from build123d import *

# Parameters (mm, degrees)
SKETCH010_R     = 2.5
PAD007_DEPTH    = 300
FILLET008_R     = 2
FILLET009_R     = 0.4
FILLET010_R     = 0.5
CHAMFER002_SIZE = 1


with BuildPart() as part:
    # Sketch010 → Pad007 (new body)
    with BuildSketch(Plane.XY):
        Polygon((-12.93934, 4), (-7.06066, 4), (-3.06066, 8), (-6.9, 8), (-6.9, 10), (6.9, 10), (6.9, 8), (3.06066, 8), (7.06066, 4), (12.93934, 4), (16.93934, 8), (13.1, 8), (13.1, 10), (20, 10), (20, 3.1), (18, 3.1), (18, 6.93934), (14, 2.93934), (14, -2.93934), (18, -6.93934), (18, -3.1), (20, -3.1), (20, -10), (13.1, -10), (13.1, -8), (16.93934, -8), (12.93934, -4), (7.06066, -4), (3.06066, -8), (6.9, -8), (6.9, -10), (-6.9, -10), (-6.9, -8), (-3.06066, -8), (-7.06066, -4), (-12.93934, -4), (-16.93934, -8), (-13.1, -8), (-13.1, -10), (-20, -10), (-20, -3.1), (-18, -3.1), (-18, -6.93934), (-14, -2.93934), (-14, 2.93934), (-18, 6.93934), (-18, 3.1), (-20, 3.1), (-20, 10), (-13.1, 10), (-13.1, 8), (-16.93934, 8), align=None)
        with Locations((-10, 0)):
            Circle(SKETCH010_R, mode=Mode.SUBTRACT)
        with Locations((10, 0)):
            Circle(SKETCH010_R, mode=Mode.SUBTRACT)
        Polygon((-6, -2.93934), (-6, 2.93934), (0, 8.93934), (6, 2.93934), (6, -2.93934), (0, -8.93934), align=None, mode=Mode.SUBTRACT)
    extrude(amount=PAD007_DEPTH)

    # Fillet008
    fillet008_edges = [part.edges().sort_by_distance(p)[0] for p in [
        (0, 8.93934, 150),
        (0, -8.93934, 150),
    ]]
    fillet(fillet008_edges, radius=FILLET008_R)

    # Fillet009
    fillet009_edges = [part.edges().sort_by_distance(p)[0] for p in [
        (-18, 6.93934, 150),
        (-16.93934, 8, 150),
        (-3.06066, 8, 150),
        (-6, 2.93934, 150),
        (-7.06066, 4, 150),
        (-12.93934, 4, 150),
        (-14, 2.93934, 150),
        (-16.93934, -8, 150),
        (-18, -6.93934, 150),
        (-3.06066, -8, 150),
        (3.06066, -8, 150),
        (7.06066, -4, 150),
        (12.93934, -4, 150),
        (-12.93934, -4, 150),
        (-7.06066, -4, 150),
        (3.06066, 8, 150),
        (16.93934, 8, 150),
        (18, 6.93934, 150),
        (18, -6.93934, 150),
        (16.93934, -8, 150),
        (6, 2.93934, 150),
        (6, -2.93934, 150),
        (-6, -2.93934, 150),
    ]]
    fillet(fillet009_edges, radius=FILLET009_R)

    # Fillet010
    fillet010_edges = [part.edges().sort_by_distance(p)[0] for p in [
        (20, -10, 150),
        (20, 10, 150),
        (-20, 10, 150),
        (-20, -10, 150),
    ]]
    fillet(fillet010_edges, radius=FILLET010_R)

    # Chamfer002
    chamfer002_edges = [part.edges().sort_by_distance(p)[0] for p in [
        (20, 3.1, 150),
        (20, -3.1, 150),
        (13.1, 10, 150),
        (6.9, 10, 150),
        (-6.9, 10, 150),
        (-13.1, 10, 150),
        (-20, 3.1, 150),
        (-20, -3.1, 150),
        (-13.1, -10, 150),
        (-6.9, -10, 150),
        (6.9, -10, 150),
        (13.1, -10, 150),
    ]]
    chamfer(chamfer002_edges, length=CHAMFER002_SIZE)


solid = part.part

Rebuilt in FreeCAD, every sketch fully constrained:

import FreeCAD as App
import Part
import Sketcher

V = App.Vector
Q = App.Units.Quantity


def edges_at(feature, points):
    """Names of the edges that pass closest to the given points."""
    edges = feature.Shape.Edges
    near = lambda p: min(range(len(edges)), key=lambda i: edges[i].distToShape(Part.Vertex(*p))[0])
    return sorted({f"Edge{near(p) + 1}" for p in points})

doc = App.newDocument("Part")
body = doc.addObject("PartDesign::Body", "Body")

# Sketch on XY plane
sketch1 = body.newObject("Sketcher::SketchObject", "Sketch")
sketch1.AttachmentSupport = (doc.getObject("XY_Plane"), [""])
sketch1.MapMode = "FlatFace"
sketch1.addGeometry([
    Part.LineSegment(V(-7.1, 4, 0), V(-12.9, 4, 0)),  # 0
    Part.LineSegment(V(-12.9, 4, 0), V(-16.9, 8, 0)),  # 1
    Part.LineSegment(V(-16.9, 8, 0), V(-13.1, 8, 0)),  # 2
    Part.LineSegment(V(-13.1, 8, 0), V(-13.1, 10, 0)),  # 3
    Part.LineSegment(V(-13.1, 10, 0), V(-20, 10, 0)),  # 4
    Part.LineSegment(V(-20, 10, 0), V(-20, 3.1, 0)),  # 5
    Part.LineSegment(V(-20, 3.1, 0), V(-18, 3.1, 0)),  # 6
    Part.LineSegment(V(-18, 3.1, 0), V(-18, 6.9, 0)),  # 7
    Part.LineSegment(V(-18, 6.9, 0), V(-14, 2.9, 0)),  # 8
    Part.LineSegment(V(-14, 2.9, 0), V(-14, -2.9, 0)),  # 9
    Part.LineSegment(V(-14, -2.9, 0), V(-18, -6.9, 0)),  # 10
    Part.LineSegment(V(-18, -6.9, 0), V(-18, -3.1, 0)),  # 11
    Part.LineSegment(V(-18, -3.1, 0), V(-20, -3.1, 0)),  # 12
    Part.LineSegment(V(-20, -3.1, 0), V(-20, -10, 0)),  # 13
    Part.LineSegment(V(-20, -10, 0), V(-13.1, -10, 0)),  # 14
    Part.LineSegment(V(-13.1, -10, 0), V(-13.1, -8, 0)),  # 15
    Part.LineSegment(V(-13.1, -8, 0), V(-16.9, -8, 0)),  # 16
    Part.LineSegment(V(-16.9, -8, 0), V(-12.9, -4, 0)),  # 17
    Part.LineSegment(V(-12.9, -4, 0), V(-7.1, -4, 0)),  # 18
    Part.LineSegment(V(-7.1, -4, 0), V(-3.1, -8, 0)),  # 19
    Part.LineSegment(V(-3.1, -8, 0), V(-6.9, -8, 0)),  # 20
    Part.LineSegment(V(-6.9, -8, 0), V(-6.9, -10, 0)),  # 21
    Part.LineSegment(V(-6.9, -10, 0), V(6.9, -10, 0)),  # 22
    Part.LineSegment(V(6.9, -10, 0), V(6.9, -8, 0)),  # 23
    Part.LineSegment(V(6.9, -8, 0), V(3.1, -8, 0)),  # 24
    Part.LineSegment(V(3.1, -8, 0), V(7.1, -4, 0)),  # 25
    Part.LineSegment(V(7.1, -4, 0), V(12.9, -4, 0)),  # 26
    Part.LineSegment(V(12.9, -4, 0), V(16.9, -8, 0)),  # 27
    Part.LineSegment(V(16.9, -8, 0), V(13.1, -8, 0)),  # 28
    Part.LineSegment(V(13.1, -8, 0), V(13.1, -10, 0)),  # 29
    Part.LineSegment(V(13.1, -10, 0), V(20, -10, 0)),  # 30
    Part.LineSegment(V(20, -10, 0), V(20, -3.1, 0)),  # 31
    Part.LineSegment(V(20, -3.1, 0), V(18, -3.1, 0)),  # 32
    Part.LineSegment(V(18, -3.1, 0), V(18, -6.9, 0)),  # 33
    Part.LineSegment(V(18, -6.9, 0), V(14, -2.9, 0)),  # 34
    Part.LineSegment(V(14, -2.9, 0), V(14, 2.9, 0)),  # 35
    Part.LineSegment(V(14, 2.9, 0), V(18, 6.9, 0)),  # 36
    Part.LineSegment(V(18, 6.9, 0), V(18, 3.1, 0)),  # 37
    Part.LineSegment(V(18, 3.1, 0), V(20, 3.1, 0)),  # 38
    Part.LineSegment(V(20, 3.1, 0), V(20, 10, 0)),  # 39
    Part.LineSegment(V(20, 10, 0), V(13.1, 10, 0)),  # 40
    Part.LineSegment(V(13.1, 10, 0), V(13.1, 8, 0)),  # 41
    Part.LineSegment(V(13.1, 8, 0), V(16.9, 8, 0)),  # 42
    Part.LineSegment(V(16.9, 8, 0), V(12.9, 4, 0)),  # 43
    Part.LineSegment(V(12.9, 4, 0), V(7.1, 4, 0)),  # 44
    Part.LineSegment(V(7.1, 4, 0), V(3.1, 8, 0)),  # 45
    Part.LineSegment(V(3.1, 8, 0), V(6.9, 8, 0)),  # 46
    Part.LineSegment(V(6.9, 8, 0), V(6.9, 10, 0)),  # 47
    Part.LineSegment(V(6.9, 10, 0), V(-6.9, 10, 0)),  # 48
    Part.LineSegment(V(-6.9, 10, 0), V(-6.9, 8, 0)),  # 49
    Part.LineSegment(V(-6.9, 8, 0), V(-3.1, 8, 0)),  # 50
    Part.LineSegment(V(-3.1, 8, 0), V(-7.1, 4, 0)),  # 51
    Part.Circle(V(10, 0, 0), V(0, 0, 1), 2.5),  # 52
    Part.LineSegment(V(-6, -2.9, 0), V(-6, 2.9, 0)),  # 53
    Part.LineSegment(V(-6, 2.9, 0), V(0, 8.9, 0)),  # 54
    Part.LineSegment(V(0, 8.9, 0), V(6, 2.9, 0)),  # 55
    Part.LineSegment(V(6, 2.9, 0), V(6, -2.9, 0)),  # 56
    Part.LineSegment(V(6, -2.9, 0), V(0, -8.9, 0)),  # 57
    Part.LineSegment(V(0, -8.9, 0), V(-6, -2.9, 0)),  # 58
    Part.Circle(V(-10, 0, 0), V(0, 0, 1), 2.5),  # 59
], False)
sketch1.addConstraint([
    Sketcher.Constraint("Coincident", 0, 2, 1, 1),
    Sketcher.Constraint("Coincident", 1, 2, 2, 1),
    Sketcher.Constraint("Coincident", 2, 2, 3, 1),
    Sketcher.Constraint("Coincident", 3, 2, 4, 1),
    Sketcher.Constraint("Coincident", 4, 2, 5, 1),
    Sketcher.Constraint("Coincident", 5, 2, 6, 1),
    Sketcher.Constraint("Coincident", 6, 2, 7, 1),
    Sketcher.Constraint("Coincident", 7, 2, 8, 1),
    Sketcher.Constraint("Coincident", 8, 2, 9, 1),
    Sketcher.Constraint("Coincident", 9, 2, 10, 1),
    Sketcher.Constraint("Coincident", 10, 2, 11, 1),
    Sketcher.Constraint("Coincident", 11, 2, 12, 1),
    Sketcher.Constraint("Coincident", 12, 2, 13, 1),
    Sketcher.Constraint("Coincident", 13, 2, 14, 1),
    Sketcher.Constraint("Coincident", 14, 2, 15, 1),
    Sketcher.Constraint("Coincident", 15, 2, 16, 1),
    Sketcher.Constraint("Coincident", 16, 2, 17, 1),
    Sketcher.Constraint("Coincident", 17, 2, 18, 1),
    Sketcher.Constraint("Coincident", 18, 2, 19, 1),
    Sketcher.Constraint("Coincident", 19, 2, 20, 1),
    Sketcher.Constraint("Coincident", 20, 2, 21, 1),
    Sketcher.Constraint("Coincident", 21, 2, 22, 1),
    Sketcher.Constraint("Coincident", 22, 2, 23, 1),
    Sketcher.Constraint("Coincident", 23, 2, 24, 1),
    Sketcher.Constraint("Coincident", 24, 2, 25, 1),
    Sketcher.Constraint("Coincident", 25, 2, 26, 1),
    Sketcher.Constraint("Coincident", 26, 2, 27, 1),
    Sketcher.Constraint("Coincident", 27, 2, 28, 1),
    Sketcher.Constraint("Coincident", 28, 2, 29, 1),
    Sketcher.Constraint("Coincident", 29, 2, 30, 1),
    Sketcher.Constraint("Coincident", 30, 2, 31, 1),
    Sketcher.Constraint("Coincident", 31, 2, 32, 1),
    Sketcher.Constraint("Coincident", 32, 2, 33, 1),
    Sketcher.Constraint("Coincident", 33, 2, 34, 1),
    Sketcher.Constraint("Coincident", 34, 2, 35, 1),
    Sketcher.Constraint("Coincident", 35, 2, 36, 1),
    Sketcher.Constraint("Coincident", 36, 2, 37, 1),
    Sketcher.Constraint("Coincident", 37, 2, 38, 1),
    Sketcher.Constraint("Coincident", 38, 2, 39, 1),
    Sketcher.Constraint("Coincident", 39, 2, 40, 1),
    Sketcher.Constraint("Coincident", 40, 2, 41, 1),
    Sketcher.Constraint("Coincident", 41, 2, 42, 1),
    Sketcher.Constraint("Coincident", 42, 2, 43, 1),
    Sketcher.Constraint("Coincident", 43, 2, 44, 1),
    Sketcher.Constraint("Coincident", 44, 2, 45, 1),
    Sketcher.Constraint("Coincident", 45, 2, 46, 1),
    Sketcher.Constraint("Coincident", 46, 2, 47, 1),
    Sketcher.Constraint("Coincident", 47, 2, 48, 1),
    Sketcher.Constraint("Coincident", 48, 2, 49, 1),
    Sketcher.Constraint("Coincident", 49, 2, 50, 1),
    Sketcher.Constraint("Coincident", 50, 2, 51, 1),
    Sketcher.Constraint("Coincident", 51, 2, 0, 1),
    Sketcher.Constraint("Coincident", 53, 2, 54, 1),
    Sketcher.Constraint("Coincident", 54, 2, 55, 1),
    Sketcher.Constraint("Coincident", 55, 2, 56, 1),
    Sketcher.Constraint("Coincident", 56, 2, 57, 1),
    Sketcher.Constraint("Coincident", 57, 2, 58, 1),
    Sketcher.Constraint("Coincident", 58, 2, 53, 1),
    Sketcher.Constraint("Horizontal", 0),
    Sketcher.Constraint("Horizontal", 2),
    Sketcher.Constraint("Vertical", 3),
    Sketcher.Constraint("Horizontal", 4),
    Sketcher.Constraint("Vertical", 5),
    Sketcher.Constraint("Horizontal", 6),
    Sketcher.Constraint("Vertical", 7),
    Sketcher.Constraint("Vertical", 9),
    Sketcher.Constraint("Vertical", 11),
    Sketcher.Constraint("Horizontal", 12),
    Sketcher.Constraint("Vertical", 13),
    Sketcher.Constraint("Horizontal", 14),
    Sketcher.Constraint("Vertical", 15),
    Sketcher.Constraint("Horizontal", 16),
    Sketcher.Constraint("Horizontal", 18),
    Sketcher.Constraint("Horizontal", 20),
    Sketcher.Constraint("Vertical", 21),
    Sketcher.Constraint("Horizontal", 22),
    Sketcher.Constraint("Vertical", 23),
    Sketcher.Constraint("Horizontal", 24),
    Sketcher.Constraint("Horizontal", 26),
    Sketcher.Constraint("Horizontal", 28),
    Sketcher.Constraint("Vertical", 29),
    Sketcher.Constraint("Horizontal", 30),
    Sketcher.Constraint("Vertical", 31),
    Sketcher.Constraint("Horizontal", 32),
    Sketcher.Constraint("Vertical", 33),
    Sketcher.Constraint("Vertical", 35),
    Sketcher.Constraint("Vertical", 37),
    Sketcher.Constraint("Horizontal", 38),
    Sketcher.Constraint("Vertical", 39),
    Sketcher.Constraint("Horizontal", 40),
    Sketcher.Constraint("Vertical", 41),
    Sketcher.Constraint("Horizontal", 42),
    Sketcher.Constraint("Horizontal", 44),
    Sketcher.Constraint("Horizontal", 46),
    Sketcher.Constraint("Vertical", 47),
    Sketcher.Constraint("Horizontal", 48),
    Sketcher.Constraint("Vertical", 49),
    Sketcher.Constraint("Horizontal", 50),
    Sketcher.Constraint("Vertical", 53),
    Sketcher.Constraint("Vertical", 56),
    Sketcher.Constraint("Equal", 52, 59),
    Sketcher.Constraint("Symmetric", 52, 3, 59, 3, -1, 1),
    Sketcher.Constraint("Symmetric", 0, 2, 26, 2, -1, 1),
    Sketcher.Constraint("Symmetric", 1, 2, 27, 2, -1, 1),
    Sketcher.Constraint("Symmetric", 3, 2, 29, 2, -1, 1),
    Sketcher.Constraint("Symmetric", 5, 2, 31, 2, -1, 1),
    Sketcher.Constraint("Symmetric", 7, 2, 33, 2, -1, 1),
    Sketcher.Constraint("Symmetric", 8, 2, 34, 2, -1, 1),
    Sketcher.Constraint("Symmetric", 10, 2, 36, 2, -1, 1),
    Sketcher.Constraint("Symmetric", 12, 2, 38, 2, -1, 1),
    Sketcher.Constraint("Symmetric", 14, 2, 40, 2, -1, 1),
    Sketcher.Constraint("Symmetric", 16, 2, 42, 2, -1, 1),
    Sketcher.Constraint("Symmetric", 17, 2, 43, 2, -1, 1),
    Sketcher.Constraint("Symmetric", 19, 2, 45, 2, -1, 1),
    Sketcher.Constraint("Symmetric", 21, 2, 47, 2, -1, 1),
    Sketcher.Constraint("Symmetric", 23, 2, 49, 2, -1, 1),
    Sketcher.Constraint("Symmetric", 53, 2, 56, 2, -1, 1),
    Sketcher.Constraint("Symmetric", 54, 2, 57, 2, -1, 1),
    Sketcher.Constraint("Symmetric", 20, 2, 23, 2, -2),
    Sketcher.Constraint("Symmetric", 18, 2, 25, 2, -2),
    Sketcher.Constraint("Symmetric", 16, 2, 27, 2, -2),
    Sketcher.Constraint("Symmetric", 14, 2, 29, 2, -2),
    Sketcher.Constraint("Symmetric", 12, 2, 31, 2, -2),
    Sketcher.Constraint("Symmetric", 10, 2, 33, 2, -2),
    Sketcher.Constraint("PointOnObject", 52, 3, -1),
    Sketcher.Constraint("PointOnObject", 54, 2, -2),
    Sketcher.Constraint("Parallel", 1, 8),
    Sketcher.Constraint("Perpendicular", 8, 10),
    Sketcher.Constraint("Parallel", 10, 17),
    Sketcher.Constraint("Perpendicular", 17, 19),
    Sketcher.Constraint("Perpendicular", 19, 25),
    Sketcher.Constraint("Perpendicular", 34, 36),
    Sketcher.Constraint("Perpendicular", 43, 45),
    Sketcher.Constraint("Perpendicular", 45, 51),
    Sketcher.Constraint("Parallel", 51, 54),
    Sketcher.Constraint("Perpendicular", 54, 55),
    Sketcher.Constraint("Perpendicular", 57, 58),
    Sketcher.Constraint("Horizontal", 16, 2, 19, 2),
    Sketcher.Constraint("Horizontal", 14, 2, 21, 2),
    Sketcher.Constraint("Horizontal", 9, 2, 34, 2),
    Sketcher.Constraint("Horizontal", 35, 2, 53, 2),
    Sketcher.Constraint("Vertical", 19, 2, 50, 2),
    Sketcher.Constraint("Equal", 16, 20),
    Sketcher.Constraint("Equal", 38, 3),
    Sketcher.Constraint("Equal", 40, 5),
    Sketcher.Constraint("Equal", 50, 7),
    Sketcher.Constraint("Equal", 44, 9),
    Sketcher.Constraint("Equal", 1, 8),
    Sketcher.Constraint("Diameter", 52, Q("5 mm")),
    Sketcher.Constraint("DistanceX", 6, 1, 6, 2, Q("2 mm")),
    Sketcher.Constraint("DistanceX", 4, 2, 4, 1, Q("6.9 mm")),
    Sketcher.Constraint("DistanceX", 22, 1, 22, 2, Q("13.8 mm")),
    Sketcher.Constraint("DistanceX", -1, 1, 52, 3, Q("10 mm")),
    Sketcher.Constraint("DistanceY", -1, 1, 0, 2, Q("4 mm")),
    Sketcher.Constraint("DistanceY", -1, 1, 1, 2, Q("8 mm")),
    Sketcher.Constraint("DistanceX", 53, 2, -1, 1, Q("6 mm")),
    Sketcher.Constraint("DistanceX", 0, 2, 0, 1, Q("5.87868 mm")),
])
pad1 = body.newObject("PartDesign::Pad", "Pad")
pad1.Profile = sketch1
pad1.Length = 300
doc.recompute()

fillet = body.newObject("PartDesign::Fillet", "Fillet")
fillet.Base = (pad1, edges_at(pad1, [(0, 8.939, 150), (0, -8.939, 150)]))
fillet.Radius = 2
doc.recompute()

fillet2 = body.newObject("PartDesign::Fillet", "Fillet001")
fillet2.Base = (fillet, edges_at(fillet, [
    (-18, 6.939, 150),
    (-16.939, 8, 150),
    (-3.061, 8, 150),
    (-6, 2.939, 150),
    (-7.061, 4, 150),
    (-12.939, 4, 150),
    (-14, 2.939, 150),
    (-16.939, -8, 150),
    (-18, -6.939, 150),
    (-3.061, -8, 150),
    (3.061, -8, 150),
    (7.061, -4, 150),
    (12.939, -4, 150),
    (-12.939, -4, 150),
    (-7.061, -4, 150),
    (3.061, 8, 150),
    (16.939, 8, 150),
    (18, 6.939, 150),
    (18, -6.939, 150),
    (16.939, -8, 150),
    (6, 2.939, 150),
    (6, -2.939, 150),
    (-6, -2.939, 150),
]))
fillet2.Radius = 0.4
doc.recompute()

fillet3 = body.newObject("PartDesign::Fillet", "Fillet002")
fillet3.Base = (fillet2, edges_at(fillet2, [
    (20, -10, 150),
    (20, 10, 150),
    (-20, 10, 150),
    (-20, -10, 150),
]))
fillet3.Radius = 0.5
doc.recompute()

chamfer = body.newObject("PartDesign::Chamfer", "Chamfer")
chamfer.Base = (fillet3, edges_at(fillet3, [
    (20, 3.1, 150),
    (20, -3.1, 150),
    (13.1, 10, 150),
    (6.9, 10, 150),
    (-6.9, 10, 150),
    (-13.1, 10, 150),
    (-20, 3.1, 150),
    (-20, -3.1, 150),
    (-13.1, -10, 150),
    (-6.9, -10, 150),
    (6.9, -10, 150),
    (13.1, -10, 150),
]))
chamfer.Size = 1

doc.recompute()
